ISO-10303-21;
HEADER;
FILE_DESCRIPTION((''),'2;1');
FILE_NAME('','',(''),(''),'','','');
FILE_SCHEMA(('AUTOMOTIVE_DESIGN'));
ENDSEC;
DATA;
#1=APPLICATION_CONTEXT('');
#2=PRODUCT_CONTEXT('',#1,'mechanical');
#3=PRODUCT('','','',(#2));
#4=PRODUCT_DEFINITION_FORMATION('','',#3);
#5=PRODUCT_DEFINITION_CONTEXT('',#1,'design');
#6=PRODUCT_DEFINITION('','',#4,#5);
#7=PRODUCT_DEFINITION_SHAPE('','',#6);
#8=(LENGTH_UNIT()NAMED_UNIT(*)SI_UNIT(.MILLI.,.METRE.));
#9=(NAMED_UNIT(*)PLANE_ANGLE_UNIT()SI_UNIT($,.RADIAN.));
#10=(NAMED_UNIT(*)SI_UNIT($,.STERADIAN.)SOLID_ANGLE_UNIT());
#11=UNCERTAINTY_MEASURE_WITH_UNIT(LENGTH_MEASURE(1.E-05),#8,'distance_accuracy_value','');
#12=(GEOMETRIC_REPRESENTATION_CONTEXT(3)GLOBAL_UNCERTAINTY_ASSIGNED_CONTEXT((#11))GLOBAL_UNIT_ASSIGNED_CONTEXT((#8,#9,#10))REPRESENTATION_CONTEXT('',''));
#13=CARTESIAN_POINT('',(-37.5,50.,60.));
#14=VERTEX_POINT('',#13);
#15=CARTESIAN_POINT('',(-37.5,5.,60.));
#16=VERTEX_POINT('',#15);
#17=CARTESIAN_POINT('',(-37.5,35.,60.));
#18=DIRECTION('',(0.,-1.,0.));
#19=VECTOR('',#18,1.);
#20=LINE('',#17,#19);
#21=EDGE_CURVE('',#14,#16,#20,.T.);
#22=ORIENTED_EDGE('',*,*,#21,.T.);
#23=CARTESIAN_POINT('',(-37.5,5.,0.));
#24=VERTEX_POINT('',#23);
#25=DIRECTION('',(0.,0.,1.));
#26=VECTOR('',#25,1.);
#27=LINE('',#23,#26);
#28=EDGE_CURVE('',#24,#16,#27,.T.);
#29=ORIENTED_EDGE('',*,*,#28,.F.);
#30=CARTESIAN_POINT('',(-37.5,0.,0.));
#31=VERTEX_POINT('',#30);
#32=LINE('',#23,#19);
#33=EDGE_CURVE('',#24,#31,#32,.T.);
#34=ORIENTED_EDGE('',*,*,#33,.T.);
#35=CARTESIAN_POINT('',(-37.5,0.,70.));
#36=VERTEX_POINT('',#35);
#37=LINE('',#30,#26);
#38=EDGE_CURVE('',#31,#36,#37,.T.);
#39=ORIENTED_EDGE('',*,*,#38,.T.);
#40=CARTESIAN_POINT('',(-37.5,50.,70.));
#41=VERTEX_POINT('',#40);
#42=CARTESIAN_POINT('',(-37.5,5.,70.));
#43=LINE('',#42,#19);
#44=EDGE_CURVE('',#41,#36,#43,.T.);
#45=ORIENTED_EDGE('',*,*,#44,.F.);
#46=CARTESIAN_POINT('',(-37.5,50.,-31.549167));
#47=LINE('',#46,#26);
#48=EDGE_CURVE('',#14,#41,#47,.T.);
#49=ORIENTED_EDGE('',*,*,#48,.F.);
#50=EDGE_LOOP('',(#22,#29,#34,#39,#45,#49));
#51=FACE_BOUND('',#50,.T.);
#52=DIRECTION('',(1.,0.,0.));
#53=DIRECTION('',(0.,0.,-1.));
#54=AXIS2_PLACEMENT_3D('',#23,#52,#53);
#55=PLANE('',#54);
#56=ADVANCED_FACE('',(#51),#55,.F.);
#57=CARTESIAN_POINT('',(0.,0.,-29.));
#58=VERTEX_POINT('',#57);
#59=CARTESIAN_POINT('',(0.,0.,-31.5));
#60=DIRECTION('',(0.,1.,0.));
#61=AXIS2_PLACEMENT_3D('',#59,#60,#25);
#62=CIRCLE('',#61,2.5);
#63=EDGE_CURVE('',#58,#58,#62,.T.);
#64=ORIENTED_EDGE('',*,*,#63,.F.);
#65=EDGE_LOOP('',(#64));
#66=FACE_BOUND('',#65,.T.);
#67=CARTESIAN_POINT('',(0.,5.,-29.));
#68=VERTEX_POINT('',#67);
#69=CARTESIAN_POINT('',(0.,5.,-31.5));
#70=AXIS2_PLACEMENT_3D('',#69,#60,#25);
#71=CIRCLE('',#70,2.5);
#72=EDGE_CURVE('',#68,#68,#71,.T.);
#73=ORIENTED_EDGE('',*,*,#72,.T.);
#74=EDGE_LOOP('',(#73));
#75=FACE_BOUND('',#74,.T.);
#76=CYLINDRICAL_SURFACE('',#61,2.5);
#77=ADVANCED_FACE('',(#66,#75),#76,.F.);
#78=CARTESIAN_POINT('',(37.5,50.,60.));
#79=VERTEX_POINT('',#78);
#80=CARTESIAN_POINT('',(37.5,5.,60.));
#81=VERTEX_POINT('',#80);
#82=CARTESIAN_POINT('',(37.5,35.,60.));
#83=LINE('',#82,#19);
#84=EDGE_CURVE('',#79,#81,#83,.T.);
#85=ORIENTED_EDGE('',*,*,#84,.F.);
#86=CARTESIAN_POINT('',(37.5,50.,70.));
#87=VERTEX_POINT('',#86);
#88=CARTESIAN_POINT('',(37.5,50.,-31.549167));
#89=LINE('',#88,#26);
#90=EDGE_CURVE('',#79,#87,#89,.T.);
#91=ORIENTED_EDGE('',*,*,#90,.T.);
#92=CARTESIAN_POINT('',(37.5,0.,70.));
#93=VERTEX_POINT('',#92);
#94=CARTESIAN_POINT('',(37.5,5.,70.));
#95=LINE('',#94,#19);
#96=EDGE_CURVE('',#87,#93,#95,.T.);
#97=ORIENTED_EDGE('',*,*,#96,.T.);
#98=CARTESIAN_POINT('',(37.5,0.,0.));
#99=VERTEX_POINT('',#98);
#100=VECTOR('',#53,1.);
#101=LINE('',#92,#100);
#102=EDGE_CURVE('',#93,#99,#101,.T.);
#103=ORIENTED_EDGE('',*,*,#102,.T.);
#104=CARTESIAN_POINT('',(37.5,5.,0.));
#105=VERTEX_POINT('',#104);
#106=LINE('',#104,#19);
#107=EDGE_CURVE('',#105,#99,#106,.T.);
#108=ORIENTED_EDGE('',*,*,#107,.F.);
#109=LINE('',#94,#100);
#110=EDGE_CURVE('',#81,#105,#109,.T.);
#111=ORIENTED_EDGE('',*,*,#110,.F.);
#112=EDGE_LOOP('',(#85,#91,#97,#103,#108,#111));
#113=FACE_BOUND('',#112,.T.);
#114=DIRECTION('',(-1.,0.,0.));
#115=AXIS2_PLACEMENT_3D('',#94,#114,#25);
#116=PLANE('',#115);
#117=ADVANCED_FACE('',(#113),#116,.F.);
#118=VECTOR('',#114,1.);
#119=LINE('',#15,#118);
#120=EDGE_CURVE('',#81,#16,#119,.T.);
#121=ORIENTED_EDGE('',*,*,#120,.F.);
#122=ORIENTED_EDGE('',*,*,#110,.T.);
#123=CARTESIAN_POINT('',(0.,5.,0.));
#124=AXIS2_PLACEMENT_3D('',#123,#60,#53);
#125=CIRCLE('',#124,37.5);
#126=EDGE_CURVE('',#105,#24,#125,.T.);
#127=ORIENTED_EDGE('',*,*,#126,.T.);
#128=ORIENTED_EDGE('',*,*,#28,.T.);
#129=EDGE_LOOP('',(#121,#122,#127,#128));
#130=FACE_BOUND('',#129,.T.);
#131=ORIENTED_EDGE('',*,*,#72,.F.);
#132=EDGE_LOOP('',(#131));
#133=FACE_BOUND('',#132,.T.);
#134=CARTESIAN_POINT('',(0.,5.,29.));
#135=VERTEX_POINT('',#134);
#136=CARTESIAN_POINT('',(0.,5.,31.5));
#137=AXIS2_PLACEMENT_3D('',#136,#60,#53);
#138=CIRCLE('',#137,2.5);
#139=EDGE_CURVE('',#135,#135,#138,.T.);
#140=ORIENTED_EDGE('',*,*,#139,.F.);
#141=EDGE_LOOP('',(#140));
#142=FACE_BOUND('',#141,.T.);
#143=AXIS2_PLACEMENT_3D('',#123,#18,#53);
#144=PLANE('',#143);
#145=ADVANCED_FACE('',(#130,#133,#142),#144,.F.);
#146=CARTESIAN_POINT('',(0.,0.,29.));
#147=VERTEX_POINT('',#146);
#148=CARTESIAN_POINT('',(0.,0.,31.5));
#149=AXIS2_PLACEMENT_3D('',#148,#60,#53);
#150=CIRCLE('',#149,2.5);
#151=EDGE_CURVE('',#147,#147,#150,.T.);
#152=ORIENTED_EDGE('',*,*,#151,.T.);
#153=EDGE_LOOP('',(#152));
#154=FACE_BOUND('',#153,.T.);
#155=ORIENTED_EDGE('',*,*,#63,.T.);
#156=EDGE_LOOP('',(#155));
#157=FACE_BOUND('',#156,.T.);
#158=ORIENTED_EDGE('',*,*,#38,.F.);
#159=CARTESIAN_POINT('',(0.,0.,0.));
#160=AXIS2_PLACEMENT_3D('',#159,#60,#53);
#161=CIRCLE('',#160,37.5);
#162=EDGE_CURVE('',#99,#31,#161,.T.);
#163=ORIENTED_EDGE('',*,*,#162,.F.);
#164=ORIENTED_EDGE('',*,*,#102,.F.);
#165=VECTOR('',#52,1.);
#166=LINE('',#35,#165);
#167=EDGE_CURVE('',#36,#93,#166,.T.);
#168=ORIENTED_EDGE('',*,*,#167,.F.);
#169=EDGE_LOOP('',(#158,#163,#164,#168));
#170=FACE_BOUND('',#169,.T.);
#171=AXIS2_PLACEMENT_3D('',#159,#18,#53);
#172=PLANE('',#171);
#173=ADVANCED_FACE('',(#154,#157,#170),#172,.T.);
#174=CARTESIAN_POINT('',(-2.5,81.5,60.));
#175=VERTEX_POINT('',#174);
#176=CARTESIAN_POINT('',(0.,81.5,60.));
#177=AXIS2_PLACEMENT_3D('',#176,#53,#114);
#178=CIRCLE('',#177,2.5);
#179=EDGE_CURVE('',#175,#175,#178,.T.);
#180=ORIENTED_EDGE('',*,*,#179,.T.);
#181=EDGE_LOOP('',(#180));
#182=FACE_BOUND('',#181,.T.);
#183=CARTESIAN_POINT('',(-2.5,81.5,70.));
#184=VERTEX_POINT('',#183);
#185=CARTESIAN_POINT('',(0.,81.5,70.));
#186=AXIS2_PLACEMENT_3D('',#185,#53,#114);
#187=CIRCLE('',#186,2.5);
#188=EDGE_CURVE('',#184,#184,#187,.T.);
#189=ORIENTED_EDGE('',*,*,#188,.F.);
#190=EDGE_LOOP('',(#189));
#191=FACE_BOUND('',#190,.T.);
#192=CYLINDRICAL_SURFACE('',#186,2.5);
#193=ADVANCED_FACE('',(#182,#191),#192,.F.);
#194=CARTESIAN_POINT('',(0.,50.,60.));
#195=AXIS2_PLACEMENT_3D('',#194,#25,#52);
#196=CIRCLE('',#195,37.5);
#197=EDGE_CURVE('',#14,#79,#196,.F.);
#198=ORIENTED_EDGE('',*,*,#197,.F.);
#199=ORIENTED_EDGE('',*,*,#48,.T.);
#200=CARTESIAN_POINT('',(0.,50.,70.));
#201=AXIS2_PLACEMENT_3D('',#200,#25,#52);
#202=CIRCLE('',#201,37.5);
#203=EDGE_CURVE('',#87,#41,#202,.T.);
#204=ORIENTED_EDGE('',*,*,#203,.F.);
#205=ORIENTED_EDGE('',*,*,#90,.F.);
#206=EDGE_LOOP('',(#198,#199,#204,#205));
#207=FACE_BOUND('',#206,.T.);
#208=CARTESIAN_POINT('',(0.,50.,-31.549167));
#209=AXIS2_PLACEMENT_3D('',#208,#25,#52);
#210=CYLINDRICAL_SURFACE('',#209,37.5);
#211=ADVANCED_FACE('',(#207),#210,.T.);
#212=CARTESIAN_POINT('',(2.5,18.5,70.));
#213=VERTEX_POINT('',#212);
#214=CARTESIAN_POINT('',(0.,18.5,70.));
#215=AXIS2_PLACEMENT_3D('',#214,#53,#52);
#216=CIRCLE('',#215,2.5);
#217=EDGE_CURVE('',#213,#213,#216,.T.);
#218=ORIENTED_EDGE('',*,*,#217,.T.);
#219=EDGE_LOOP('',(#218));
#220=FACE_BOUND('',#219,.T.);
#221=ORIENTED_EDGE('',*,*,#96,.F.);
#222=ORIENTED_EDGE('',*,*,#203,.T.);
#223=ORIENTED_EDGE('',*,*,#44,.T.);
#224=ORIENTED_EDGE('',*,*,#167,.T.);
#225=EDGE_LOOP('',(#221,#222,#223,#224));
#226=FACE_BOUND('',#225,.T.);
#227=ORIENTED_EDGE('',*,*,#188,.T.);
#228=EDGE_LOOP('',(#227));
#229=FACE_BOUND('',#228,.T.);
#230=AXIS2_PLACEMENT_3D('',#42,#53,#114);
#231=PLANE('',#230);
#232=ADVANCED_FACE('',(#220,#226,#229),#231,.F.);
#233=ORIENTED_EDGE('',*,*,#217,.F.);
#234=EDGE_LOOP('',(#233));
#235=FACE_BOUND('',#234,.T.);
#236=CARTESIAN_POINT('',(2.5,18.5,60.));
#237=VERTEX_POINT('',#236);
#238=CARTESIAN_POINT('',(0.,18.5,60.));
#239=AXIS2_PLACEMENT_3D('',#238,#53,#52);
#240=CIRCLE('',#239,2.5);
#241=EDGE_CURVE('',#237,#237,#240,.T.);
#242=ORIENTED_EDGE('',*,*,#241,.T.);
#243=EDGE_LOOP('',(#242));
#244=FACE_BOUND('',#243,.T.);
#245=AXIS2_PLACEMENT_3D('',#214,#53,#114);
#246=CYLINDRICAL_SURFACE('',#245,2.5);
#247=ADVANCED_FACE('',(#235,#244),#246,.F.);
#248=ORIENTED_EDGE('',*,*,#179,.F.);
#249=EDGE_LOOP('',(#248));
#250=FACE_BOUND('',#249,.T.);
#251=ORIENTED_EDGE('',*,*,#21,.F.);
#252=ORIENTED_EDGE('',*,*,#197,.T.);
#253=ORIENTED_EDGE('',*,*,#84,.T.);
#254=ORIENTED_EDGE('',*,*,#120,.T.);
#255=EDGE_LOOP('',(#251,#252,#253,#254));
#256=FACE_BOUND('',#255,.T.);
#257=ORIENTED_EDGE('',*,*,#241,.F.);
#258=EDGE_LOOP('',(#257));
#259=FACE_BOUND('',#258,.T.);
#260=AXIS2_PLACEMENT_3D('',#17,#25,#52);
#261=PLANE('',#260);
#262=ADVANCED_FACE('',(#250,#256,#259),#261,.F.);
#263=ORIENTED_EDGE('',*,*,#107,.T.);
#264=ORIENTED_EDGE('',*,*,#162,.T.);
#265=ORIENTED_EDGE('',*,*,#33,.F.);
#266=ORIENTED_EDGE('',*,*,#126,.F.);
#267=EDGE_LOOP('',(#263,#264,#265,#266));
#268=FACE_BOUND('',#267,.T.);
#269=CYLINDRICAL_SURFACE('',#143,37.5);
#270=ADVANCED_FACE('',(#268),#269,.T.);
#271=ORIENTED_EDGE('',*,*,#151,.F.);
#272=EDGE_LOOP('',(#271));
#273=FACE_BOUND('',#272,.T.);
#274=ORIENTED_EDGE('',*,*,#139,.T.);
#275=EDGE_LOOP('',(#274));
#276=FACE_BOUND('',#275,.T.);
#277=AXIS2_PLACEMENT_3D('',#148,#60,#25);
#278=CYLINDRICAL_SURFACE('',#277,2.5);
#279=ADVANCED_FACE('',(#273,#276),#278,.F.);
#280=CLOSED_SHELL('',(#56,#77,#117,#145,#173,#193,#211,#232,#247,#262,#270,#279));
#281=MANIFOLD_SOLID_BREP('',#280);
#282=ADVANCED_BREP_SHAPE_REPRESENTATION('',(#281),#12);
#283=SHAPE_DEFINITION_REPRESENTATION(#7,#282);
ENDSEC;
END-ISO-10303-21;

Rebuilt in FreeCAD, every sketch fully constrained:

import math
import FreeCAD as App
import Part
import Sketcher

V = App.Vector


def add_polygon(sketch, points):
    """Adds a closed chain of lines whose ends are joined by coincident constraints."""
    first, n = sketch.GeometryCount, len(points)
    for a, b in zip(points, points[1:] + points[:1]):
        sketch.addGeometry(Part.LineSegment(App.Vector(*a, 0), App.Vector(*b, 0)), False)
    for i in range(n):
        sketch.addConstraint(Sketcher.Constraint("Coincident", first + i, 2, first + (i + 1) % n, 1))

doc = App.newDocument("Part")
params = doc.addObject("Spreadsheet::Sheet", "Params")
for row, (alias, value) in enumerate([
    ("sketch1_radius", "37.5 mm"),
    ("sketch1_height", "70 mm"),
    ("pad1_length", "5 mm"),
    ("sketch2_width", "75 mm"),
    ("sketch2_height", "10 mm"),
    ("pad2_length", "30 mm"),
    ("sketch3_diameter", "5 mm"),
    ("sketch4_radius", "37.5 mm"),
    ("sketch4_height", "15 mm"),
    ("pad3_length", "10 mm"),
    ("sketch5_diameter", "5 mm"),
], start=1):
    params.set(f"A{row}", alias)
    params.set(f"B{row}", "=" + value)
    params.setAlias(f"B{row}", alias)

body = doc.addObject("PartDesign::Body", "Body")

# Sketch on XZ plane
sketch1 = body.newObject("Sketcher::SketchObject", "Sketch")
sketch1.AttachmentSupport = (doc.getObject("XZ_Plane"), [""])
sketch1.MapMode = "FlatFace"
sketch1.addGeometry([
    Part.LineSegment(V(-38, 0, 0), V(-38, 70, 0)),
    Part.LineSegment(V(-38, 70, 0), V(38, 70, 0)),
    Part.LineSegment(V(38, 70, 0), V(38, 0, 0)),
    Part.ArcOfCircle(Part.Circle(V(0, 0, 0), V(0, 0, 1), 38), math.radians(180), math.radians(360)),
], False)
sketch1.addConstraint([
    Sketcher.Constraint("Coincident", 0, 2, 1, 1),
    Sketcher.Constraint("Coincident", 1, 2, 2, 1),
    Sketcher.Constraint("Tangent", 2, 2, 3, 2),
    Sketcher.Constraint("Tangent", 3, 1, 0, 1),
    Sketcher.Constraint("Vertical", 0),
    Sketcher.Constraint("Horizontal", 1),
    Sketcher.Constraint("Vertical", 2),
    Sketcher.Constraint("Coincident", 3, 3, -1, 1),
    Sketcher.Constraint("Radius", 3, 37.5),
    Sketcher.Constraint("DistanceY", 0, 1, 0, 2, 70.0),
])
sketch1.setExpression("Constraints[8]", "Params.sketch1_radius")
sketch1.setExpression("Constraints[9]", "Params.sketch1_height")
pad1 = body.newObject("PartDesign::Pad", "Pad")
pad1.Profile = sketch1
pad1.setExpression("Length", "Params.pad1_length")
pad1.Reversed = True

# Sketch on XZ plane
sketch2 = body.newObject("Sketcher::SketchObject", "Sketch001")
sketch2.AttachmentSupport = (doc.getObject("XZ_Plane"), [""])
sketch2.MapMode = "FlatFace"
sketch2.AttachmentOffset = App.Placement(V(0, 0, -5), App.Rotation())
add_polygon(sketch2, [(-38, 60), (-38, 70), (38, 70), (38, 60)])  # lines 0-3
sketch2.addConstraint([
    Sketcher.Constraint("Vertical", 0),
    Sketcher.Constraint("Horizontal", 1),
    Sketcher.Constraint("Vertical", 2),
    Sketcher.Constraint("Horizontal", 3),
    Sketcher.Constraint("DistanceX", 1, 1, 1, 2, 75.0),
    Sketcher.Constraint("DistanceY", 0, 1, 0, 2, 10.0),
    Sketcher.Constraint("DistanceY", -1, 1, 0, 2, 70.0),
    Sketcher.Constraint("DistanceX", 0, 2, -1, 1, 37.5),
])
sketch2.setExpression("Constraints[8]", "Params.sketch2_width")
sketch2.setExpression("Constraints[9]", "Params.sketch2_height")
pad2 = body.newObject("PartDesign::Pad", "Pad001")
pad2.Profile = sketch2
pad2.setExpression("Length", "Params.pad2_length")
pad2.Reversed = True

# Sketch on XZ plane
sketch3 = body.newObject("Sketcher::SketchObject", "Sketch002")
sketch3.AttachmentSupport = (doc.getObject("XZ_Plane"), [""])
sketch3.MapMode = "FlatFace"
sketch3.AttachmentOffset = App.Placement(V(0, 0, -5), App.Rotation())
sketch3.addGeometry([
    Part.Circle(V(0, -31.5, 0), V(0, 0, 1), 2.5),
    Part.Circle(V(0, 31.5, 0), V(0, 0, 1), 2.5),
], False)
sketch3.addConstraint([
    Sketcher.Constraint("Equal", 0, 1),
    Sketcher.Constraint("Symmetric", 0, 3, 1, 3, -1, 1),
    Sketcher.Constraint("PointOnObject", 0, 3, -2),
    Sketcher.Constraint("Diameter", 0, 5.0),
    Sketcher.Constraint("DistanceY", 0, 3, 1, 3, 63.0),
])
sketch3.setExpression("Constraints[3]", "Params.sketch3_diameter")
pocket1 = body.newObject("PartDesign::Pocket", "Pocket")
pocket1.Profile = sketch3
pocket1.Type = "ThroughAll"
pocket1.Reversed = True

# Sketch on XY plane
sketch4 = body.newObject("Sketcher::SketchObject", "Sketch003")
sketch4.AttachmentSupport = (doc.getObject("XY_Plane"), [""])
sketch4.MapMode = "FlatFace"
sketch4.AttachmentOffset = App.Placement(V(0, 0, 70), App.Rotation())
sketch4.addGeometry([
    Part.LineSegment(V(-38, 50, 0), V(-38, 35, 0)),
    Part.LineSegment(V(-38, 35, 0), V(38, 35, 0)),
    Part.LineSegment(V(38, 35, 0), V(38, 50, 0)),
    Part.ArcOfCircle(Part.Circle(V(0, 50, 0), V(0, 0, 1), 38), math.radians(0), math.radians(180)),
], False)
sketch4.addConstraint([
    Sketcher.Constraint("Coincident", 0, 2, 1, 1),
    Sketcher.Constraint("Coincident", 1, 2, 2, 1),
    Sketcher.Constraint("Tangent", 2, 2, 3, 1),
    Sketcher.Constraint("Tangent", 3, 2, 0, 1),
    Sketcher.Constraint("Vertical", 0),
    Sketcher.Constraint("Horizontal", 1),
    Sketcher.Constraint("Vertical", 2),
    Sketcher.Constraint("PointOnObject", 3, 3, -2),
    Sketcher.Constraint("Radius", 3, 37.5),
    Sketcher.Constraint("DistanceY", 0, 2, 0, 1, 15.0),
    Sketcher.Constraint("DistanceY", -1, 1, 3, 3, 50.0),
])
sketch4.setExpression("Constraints[8]", "Params.sketch4_radius")
sketch4.setExpression("Constraints[9]", "Params.sketch4_height")
pad3 = body.newObject("PartDesign::Pad", "Pad002")
pad3.Profile = sketch4
pad3.setExpression("Length", "Params.pad3_length")
pad3.Reversed = True

# Sketch on XY plane
sketch5 = body.newObject("Sketcher::SketchObject", "Sketch004")
sketch5.AttachmentSupport = (doc.getObject("XY_Plane"), [""])
sketch5.MapMode = "FlatFace"
sketch5.AttachmentOffset = App.Placement(V(0, 0, 60), App.Rotation())
sketch5.addGeometry([
    Part.Circle(V(0, 81.5, 0), V(0, 0, 1), 2.5),
    Part.Circle(V(0, 18.5, 0), V(0, 0, 1), 2.5),
], False)
sketch5.addConstraint([
    Sketcher.Constraint("Equal", 0, 1),
    Sketcher.Constraint("PointOnObject", 0, 3, -2),
    Sketcher.Constraint("PointOnObject", 1, 3, -2),
    Sketcher.Constraint("Diameter", 0, 5.0),
    Sketcher.Constraint("DistanceY", 1, 3, 0, 3, 63.0),
    Sketcher.Constraint("DistanceY", -1, 1, 0, 3, 81.5),
])
sketch5.setExpression("Constraints[3]", "Params.sketch5_diameter")
pocket2 = body.newObject("PartDesign::Pocket", "Pocket001")
pocket2.Profile = sketch5
pocket2.Type = "ThroughAll"
pocket2.Reversed = True

doc.recompute()
